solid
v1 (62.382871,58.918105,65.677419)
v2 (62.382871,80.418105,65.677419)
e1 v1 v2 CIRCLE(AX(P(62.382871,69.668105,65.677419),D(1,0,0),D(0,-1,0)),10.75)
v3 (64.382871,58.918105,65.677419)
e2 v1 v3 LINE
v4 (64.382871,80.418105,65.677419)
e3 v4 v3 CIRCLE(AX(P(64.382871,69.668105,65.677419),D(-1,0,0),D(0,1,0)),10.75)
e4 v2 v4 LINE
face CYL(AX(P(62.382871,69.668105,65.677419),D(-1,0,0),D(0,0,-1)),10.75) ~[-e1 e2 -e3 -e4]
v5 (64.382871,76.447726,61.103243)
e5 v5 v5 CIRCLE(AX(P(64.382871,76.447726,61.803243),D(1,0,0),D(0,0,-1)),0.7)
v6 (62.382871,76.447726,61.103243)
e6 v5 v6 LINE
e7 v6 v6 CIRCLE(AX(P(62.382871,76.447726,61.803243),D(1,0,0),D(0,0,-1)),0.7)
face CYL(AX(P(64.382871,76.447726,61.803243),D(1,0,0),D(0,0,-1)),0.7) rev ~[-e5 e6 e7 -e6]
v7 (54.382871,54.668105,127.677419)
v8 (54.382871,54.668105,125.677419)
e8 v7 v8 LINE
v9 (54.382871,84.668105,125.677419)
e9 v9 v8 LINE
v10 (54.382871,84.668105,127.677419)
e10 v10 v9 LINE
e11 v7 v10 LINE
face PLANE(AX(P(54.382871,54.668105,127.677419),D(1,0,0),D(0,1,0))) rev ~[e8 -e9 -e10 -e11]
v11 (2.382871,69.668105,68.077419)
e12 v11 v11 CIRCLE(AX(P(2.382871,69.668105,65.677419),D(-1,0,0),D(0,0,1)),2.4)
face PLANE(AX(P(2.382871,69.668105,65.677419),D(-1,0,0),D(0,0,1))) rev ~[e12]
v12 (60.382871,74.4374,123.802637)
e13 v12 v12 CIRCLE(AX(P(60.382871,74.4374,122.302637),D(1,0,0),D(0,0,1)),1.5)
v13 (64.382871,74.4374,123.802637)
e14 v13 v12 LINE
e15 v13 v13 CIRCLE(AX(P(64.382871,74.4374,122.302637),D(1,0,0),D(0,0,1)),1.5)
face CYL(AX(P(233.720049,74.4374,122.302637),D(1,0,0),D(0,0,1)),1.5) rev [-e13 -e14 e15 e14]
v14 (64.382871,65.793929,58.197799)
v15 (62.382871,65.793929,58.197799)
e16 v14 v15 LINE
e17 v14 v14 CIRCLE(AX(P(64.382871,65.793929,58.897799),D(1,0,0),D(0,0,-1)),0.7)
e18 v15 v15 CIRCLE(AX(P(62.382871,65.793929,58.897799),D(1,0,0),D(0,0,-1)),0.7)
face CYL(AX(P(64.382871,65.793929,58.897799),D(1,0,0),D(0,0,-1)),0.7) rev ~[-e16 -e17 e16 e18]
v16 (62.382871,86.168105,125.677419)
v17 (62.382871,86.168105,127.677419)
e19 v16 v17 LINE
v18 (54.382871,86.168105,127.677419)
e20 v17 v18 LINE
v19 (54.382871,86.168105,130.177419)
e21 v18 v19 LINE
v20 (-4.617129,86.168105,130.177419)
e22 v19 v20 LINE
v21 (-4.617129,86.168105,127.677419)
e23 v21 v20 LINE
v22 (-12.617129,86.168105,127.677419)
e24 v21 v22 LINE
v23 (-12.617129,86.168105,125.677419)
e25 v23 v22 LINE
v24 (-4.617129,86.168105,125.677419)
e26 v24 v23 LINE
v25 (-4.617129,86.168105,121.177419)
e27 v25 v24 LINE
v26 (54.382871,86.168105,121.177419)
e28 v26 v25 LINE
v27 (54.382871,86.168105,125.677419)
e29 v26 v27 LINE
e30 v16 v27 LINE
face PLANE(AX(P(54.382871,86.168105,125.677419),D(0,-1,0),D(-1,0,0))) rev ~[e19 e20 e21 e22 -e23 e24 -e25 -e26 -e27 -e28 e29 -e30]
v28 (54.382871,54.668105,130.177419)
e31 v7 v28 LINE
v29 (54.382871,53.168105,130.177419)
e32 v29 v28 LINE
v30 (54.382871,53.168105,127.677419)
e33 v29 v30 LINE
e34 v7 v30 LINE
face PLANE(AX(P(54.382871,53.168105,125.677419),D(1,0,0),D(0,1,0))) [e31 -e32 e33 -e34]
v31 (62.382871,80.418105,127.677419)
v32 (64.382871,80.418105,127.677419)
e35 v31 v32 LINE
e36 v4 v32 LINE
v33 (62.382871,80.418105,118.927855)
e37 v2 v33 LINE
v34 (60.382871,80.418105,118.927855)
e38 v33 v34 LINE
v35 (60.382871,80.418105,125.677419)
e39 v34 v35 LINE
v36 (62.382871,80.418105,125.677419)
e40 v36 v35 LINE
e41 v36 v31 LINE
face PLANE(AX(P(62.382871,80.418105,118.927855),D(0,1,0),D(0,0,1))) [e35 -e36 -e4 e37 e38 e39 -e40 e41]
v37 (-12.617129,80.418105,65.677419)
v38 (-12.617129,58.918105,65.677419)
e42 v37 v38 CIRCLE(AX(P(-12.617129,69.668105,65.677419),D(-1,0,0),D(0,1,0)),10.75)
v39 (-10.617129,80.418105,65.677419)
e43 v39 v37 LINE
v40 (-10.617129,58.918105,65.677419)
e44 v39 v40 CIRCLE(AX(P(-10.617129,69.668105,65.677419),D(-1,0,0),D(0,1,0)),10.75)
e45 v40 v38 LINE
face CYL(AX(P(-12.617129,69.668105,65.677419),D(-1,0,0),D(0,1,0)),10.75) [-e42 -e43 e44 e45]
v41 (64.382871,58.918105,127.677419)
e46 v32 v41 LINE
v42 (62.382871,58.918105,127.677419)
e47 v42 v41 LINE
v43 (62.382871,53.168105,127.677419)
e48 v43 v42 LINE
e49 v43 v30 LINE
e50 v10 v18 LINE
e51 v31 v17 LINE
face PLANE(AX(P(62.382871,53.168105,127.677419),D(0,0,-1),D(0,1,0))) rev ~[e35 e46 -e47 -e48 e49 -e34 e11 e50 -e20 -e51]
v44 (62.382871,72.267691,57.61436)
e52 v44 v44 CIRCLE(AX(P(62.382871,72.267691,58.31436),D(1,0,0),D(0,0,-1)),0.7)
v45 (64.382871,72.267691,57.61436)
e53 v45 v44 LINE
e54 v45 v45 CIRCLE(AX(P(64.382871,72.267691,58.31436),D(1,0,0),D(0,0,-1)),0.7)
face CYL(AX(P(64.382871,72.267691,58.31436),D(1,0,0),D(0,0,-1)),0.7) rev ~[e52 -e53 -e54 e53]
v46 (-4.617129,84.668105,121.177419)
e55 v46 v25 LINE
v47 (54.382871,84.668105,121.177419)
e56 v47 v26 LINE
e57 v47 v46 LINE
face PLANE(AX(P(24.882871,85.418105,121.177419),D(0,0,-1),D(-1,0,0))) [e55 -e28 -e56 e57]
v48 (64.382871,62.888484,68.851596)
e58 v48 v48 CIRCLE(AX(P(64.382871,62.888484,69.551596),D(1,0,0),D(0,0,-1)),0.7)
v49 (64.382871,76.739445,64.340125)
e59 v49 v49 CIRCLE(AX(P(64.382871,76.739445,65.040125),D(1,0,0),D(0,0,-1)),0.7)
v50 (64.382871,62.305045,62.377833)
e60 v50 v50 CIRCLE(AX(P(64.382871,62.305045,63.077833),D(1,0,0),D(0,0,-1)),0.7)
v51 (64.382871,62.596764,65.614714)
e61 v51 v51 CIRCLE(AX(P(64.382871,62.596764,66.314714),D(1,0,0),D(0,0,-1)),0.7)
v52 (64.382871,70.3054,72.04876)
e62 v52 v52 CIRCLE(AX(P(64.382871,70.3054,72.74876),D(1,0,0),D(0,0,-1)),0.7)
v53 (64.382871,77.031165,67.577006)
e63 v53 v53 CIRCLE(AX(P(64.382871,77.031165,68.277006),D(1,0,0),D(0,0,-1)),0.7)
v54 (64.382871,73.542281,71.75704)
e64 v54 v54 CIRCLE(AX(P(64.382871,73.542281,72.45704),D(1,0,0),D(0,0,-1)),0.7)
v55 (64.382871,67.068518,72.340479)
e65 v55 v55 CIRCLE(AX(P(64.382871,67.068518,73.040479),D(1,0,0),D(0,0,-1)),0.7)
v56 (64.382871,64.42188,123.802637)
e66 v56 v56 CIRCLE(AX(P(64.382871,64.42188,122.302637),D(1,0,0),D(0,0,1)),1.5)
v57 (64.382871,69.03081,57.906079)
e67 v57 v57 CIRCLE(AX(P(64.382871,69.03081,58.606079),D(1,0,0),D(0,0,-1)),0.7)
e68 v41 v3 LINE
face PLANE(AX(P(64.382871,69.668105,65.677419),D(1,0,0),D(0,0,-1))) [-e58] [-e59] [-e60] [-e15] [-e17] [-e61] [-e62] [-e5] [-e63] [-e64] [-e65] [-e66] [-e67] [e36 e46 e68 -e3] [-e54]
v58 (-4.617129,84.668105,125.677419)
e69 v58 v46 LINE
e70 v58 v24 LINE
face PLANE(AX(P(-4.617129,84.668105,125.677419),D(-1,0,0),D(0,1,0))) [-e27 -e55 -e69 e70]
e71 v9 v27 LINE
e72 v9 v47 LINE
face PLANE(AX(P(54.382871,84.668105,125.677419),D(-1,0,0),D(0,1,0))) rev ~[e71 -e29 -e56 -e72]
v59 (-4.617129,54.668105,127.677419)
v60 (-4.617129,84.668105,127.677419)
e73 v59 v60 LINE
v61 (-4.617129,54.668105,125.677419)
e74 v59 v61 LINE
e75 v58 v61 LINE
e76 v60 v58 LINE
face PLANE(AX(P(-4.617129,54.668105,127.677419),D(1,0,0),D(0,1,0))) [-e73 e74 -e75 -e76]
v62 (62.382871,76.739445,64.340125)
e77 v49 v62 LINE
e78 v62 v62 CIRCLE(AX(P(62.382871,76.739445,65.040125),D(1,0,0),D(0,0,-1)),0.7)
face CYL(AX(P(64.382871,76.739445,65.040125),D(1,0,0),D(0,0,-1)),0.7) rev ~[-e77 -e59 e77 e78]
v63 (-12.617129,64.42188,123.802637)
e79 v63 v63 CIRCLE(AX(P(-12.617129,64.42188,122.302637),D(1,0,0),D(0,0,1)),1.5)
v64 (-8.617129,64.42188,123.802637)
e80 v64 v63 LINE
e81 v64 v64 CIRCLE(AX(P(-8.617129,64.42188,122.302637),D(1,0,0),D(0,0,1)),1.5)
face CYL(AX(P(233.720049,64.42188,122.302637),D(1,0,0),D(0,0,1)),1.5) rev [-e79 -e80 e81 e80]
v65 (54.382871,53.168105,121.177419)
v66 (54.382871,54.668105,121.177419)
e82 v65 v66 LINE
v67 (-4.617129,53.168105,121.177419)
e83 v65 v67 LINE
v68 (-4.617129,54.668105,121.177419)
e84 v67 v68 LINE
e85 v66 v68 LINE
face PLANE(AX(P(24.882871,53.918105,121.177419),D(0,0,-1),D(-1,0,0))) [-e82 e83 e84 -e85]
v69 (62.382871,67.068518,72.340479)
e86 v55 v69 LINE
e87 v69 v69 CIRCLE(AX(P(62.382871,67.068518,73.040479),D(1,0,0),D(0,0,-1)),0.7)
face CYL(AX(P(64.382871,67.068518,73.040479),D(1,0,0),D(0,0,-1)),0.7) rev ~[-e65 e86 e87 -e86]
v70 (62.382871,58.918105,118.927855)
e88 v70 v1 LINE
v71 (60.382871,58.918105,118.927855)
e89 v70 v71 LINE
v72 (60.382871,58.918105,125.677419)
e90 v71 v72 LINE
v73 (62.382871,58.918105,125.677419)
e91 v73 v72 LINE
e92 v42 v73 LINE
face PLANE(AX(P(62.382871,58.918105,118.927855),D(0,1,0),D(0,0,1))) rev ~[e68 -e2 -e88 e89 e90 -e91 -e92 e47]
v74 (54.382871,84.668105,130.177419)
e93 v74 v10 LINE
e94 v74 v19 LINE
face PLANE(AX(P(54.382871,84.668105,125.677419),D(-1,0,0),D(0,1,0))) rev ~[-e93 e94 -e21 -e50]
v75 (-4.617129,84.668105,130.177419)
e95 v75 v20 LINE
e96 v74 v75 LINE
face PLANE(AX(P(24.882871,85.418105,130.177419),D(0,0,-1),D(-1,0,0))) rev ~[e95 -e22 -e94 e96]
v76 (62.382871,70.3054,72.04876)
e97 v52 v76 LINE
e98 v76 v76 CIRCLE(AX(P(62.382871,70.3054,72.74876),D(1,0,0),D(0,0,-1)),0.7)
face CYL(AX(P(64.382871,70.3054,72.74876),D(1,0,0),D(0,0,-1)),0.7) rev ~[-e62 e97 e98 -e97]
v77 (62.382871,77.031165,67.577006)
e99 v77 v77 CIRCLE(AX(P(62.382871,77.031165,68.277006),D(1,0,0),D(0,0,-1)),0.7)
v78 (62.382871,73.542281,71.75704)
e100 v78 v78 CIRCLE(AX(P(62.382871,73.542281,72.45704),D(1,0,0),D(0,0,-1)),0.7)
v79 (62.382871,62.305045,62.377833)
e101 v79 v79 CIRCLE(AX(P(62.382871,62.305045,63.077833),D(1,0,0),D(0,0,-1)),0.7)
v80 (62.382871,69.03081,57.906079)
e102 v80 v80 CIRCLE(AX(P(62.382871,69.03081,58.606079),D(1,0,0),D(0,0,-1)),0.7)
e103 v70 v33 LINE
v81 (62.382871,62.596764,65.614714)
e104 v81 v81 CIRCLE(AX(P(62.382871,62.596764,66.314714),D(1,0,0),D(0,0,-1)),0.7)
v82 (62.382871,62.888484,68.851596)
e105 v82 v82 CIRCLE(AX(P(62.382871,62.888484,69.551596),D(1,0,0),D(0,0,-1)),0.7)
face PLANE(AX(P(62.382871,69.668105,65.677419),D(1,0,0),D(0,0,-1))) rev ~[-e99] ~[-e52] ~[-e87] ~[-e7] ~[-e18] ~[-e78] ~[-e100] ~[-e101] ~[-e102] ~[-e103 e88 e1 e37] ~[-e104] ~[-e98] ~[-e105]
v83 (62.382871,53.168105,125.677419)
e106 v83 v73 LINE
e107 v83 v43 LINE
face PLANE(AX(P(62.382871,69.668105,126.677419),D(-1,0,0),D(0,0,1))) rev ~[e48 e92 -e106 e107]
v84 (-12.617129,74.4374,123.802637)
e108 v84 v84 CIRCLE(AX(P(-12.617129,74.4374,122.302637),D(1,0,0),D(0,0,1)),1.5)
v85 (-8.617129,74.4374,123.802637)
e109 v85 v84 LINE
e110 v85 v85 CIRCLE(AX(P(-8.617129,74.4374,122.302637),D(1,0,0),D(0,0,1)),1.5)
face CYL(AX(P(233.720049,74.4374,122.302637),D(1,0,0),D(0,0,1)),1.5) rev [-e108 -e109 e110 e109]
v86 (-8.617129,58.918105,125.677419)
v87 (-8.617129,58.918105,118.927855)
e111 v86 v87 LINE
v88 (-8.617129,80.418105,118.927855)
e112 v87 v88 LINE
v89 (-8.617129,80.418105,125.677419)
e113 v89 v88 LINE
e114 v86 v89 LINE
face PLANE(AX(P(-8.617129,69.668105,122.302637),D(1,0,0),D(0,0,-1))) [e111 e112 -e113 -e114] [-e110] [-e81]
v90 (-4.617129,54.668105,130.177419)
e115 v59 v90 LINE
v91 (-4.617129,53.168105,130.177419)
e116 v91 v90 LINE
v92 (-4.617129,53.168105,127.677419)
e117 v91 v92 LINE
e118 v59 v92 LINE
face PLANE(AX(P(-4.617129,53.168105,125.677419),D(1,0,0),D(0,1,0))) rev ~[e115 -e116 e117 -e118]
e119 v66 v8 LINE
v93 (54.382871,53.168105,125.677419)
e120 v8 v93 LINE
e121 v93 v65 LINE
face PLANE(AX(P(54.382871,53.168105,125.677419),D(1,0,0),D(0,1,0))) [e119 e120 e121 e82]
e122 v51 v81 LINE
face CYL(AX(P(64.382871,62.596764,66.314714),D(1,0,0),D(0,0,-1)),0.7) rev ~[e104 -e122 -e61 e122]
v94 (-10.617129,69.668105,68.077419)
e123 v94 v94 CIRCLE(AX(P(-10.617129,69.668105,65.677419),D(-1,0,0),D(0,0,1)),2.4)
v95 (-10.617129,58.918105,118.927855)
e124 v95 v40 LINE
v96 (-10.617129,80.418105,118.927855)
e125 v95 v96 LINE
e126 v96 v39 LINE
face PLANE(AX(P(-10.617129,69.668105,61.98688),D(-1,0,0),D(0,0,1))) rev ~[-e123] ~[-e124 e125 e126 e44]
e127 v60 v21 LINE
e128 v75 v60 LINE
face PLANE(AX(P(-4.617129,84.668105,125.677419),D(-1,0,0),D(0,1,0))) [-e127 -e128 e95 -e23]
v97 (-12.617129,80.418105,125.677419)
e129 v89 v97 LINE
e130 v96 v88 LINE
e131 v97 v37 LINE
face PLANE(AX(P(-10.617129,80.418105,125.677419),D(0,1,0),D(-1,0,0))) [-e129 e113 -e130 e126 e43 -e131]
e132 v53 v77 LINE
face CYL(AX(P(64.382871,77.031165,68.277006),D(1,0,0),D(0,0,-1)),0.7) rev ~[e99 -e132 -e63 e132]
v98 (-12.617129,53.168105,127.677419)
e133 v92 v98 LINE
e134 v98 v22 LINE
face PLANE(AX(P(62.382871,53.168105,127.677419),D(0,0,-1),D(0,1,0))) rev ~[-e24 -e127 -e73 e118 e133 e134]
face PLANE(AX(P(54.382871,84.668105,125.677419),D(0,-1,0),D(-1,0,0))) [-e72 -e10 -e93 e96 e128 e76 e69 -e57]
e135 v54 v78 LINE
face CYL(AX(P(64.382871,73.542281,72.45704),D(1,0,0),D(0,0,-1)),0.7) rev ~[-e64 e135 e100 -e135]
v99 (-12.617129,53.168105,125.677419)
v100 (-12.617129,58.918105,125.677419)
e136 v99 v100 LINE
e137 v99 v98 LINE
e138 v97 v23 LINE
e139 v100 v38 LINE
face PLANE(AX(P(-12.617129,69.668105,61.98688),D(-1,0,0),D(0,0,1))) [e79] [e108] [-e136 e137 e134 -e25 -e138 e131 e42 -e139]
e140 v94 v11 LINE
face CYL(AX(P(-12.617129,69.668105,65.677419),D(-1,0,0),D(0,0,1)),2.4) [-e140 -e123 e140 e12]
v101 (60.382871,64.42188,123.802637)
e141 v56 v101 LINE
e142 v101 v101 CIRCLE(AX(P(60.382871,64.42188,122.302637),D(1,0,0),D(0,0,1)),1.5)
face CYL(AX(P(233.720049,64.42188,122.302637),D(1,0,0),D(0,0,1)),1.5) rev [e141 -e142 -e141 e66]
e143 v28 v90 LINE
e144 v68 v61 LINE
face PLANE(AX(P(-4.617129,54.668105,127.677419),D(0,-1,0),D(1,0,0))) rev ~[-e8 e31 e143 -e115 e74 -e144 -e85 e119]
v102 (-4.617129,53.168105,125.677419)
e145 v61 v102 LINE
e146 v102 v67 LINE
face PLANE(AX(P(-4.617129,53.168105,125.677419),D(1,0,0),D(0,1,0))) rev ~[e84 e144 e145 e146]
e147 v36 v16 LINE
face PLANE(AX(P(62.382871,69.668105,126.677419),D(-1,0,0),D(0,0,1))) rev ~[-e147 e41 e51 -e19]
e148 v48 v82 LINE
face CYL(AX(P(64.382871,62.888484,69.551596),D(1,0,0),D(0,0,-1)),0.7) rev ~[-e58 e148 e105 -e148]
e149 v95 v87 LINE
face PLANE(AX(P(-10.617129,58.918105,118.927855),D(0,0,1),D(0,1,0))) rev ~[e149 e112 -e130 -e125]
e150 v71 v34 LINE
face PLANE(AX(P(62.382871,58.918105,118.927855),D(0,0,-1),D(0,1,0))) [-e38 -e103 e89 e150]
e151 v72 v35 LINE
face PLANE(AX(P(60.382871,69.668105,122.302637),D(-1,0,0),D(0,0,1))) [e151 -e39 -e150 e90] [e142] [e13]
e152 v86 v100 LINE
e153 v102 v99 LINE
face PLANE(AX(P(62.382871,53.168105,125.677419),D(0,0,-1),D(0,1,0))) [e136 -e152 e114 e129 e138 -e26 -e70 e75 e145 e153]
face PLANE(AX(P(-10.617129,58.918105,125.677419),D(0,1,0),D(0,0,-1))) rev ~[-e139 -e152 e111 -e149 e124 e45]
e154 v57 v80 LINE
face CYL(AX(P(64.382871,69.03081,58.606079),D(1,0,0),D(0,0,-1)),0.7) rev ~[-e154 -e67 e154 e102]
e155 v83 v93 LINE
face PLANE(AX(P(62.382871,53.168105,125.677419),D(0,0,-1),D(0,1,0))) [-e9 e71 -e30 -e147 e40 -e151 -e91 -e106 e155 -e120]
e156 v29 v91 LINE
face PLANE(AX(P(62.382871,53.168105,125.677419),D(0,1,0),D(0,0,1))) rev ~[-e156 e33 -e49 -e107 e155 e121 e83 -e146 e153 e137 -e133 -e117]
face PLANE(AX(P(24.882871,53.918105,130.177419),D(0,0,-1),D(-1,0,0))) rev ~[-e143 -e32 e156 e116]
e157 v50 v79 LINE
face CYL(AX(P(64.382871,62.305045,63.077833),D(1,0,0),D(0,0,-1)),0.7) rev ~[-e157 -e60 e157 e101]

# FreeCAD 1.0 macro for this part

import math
import FreeCAD as App
import Part
import Sketcher

doc = App.newDocument("Part")
params = doc.addObject("Spreadsheet::Sheet", "Params")
for row, (alias, value) in enumerate([
    ("sketch1_diameter", "1 mm"),
    ("sketch1_diameter2", "21.5 mm"),
    ("pad1_length", "2 mm"),
    ("sketch2_height", "62 mm"),
    ("sketch2_radius", "10.75 mm"),
    ("pad2_length", "2 mm"),
    ("sketch3_width", "33 mm"),
    ("sketch3_height", "2 mm"),
    ("pad3_length", "75 mm"),
    ("sketch4_diameter", "1.4 mm"),
    ("pocket1_length", "7 mm"),
    ("sketch5_width", "2 mm"),
    ("sketch5_height", "21.5 mm"),
    ("pad4_length", "60 mm"),
    ("sketch6_width", "10 mm"),
    ("sketch6_radius", "10.75 mm"),
    ("pad5_length", "2 mm"),
    ("sketch7_diameter", "4.8 mm"),
    ("pad6_length", "15 mm"),
    ("sketch8_width", "59 mm"),
    ("sketch8_height", "30 mm"),
    ("pocket2_length", "15 mm"),
    ("sketch9_width", "59 mm"),
    ("sketch9_height", "1.5 mm"),
    ("pad7_length", "9 mm"),
    ("sketch10_width", "21.5 mm"),
    ("pad8_length", "2 mm"),
    ("sketch11_width", "21.5 mm"),
    ("pad9_length", "2 mm"),
    ("sketch12_diameter", "3 mm"),
], start=1):
    params.set(f"A{row}", alias)
    params.set(f"B{row}", "=" + value)
    params.setAlias(f"B{row}", alias)

body = doc.addObject("PartDesign::Body", "Body")

sketch1 = body.newObject("Sketcher::SketchObject", "Sketch")
sketch1.AttachmentSupport = (doc.getObject("YZ_Plane"), [""])
sketch1.MapMode = "FlatFace"
sketch1.AttachmentOffset = App.Placement(App.Vector(0, 0, 62.382871), App.Rotation())
sketch1.addGeometry([
    Part.Circle(App.Vector(69.668105, 65.677419, 0), App.Vector(0, 0, 1), 10.75),
    Part.Circle(App.Vector(62.888484, 69.551596, 0), App.Vector(0, 0, 1), 0.5),
    Part.Circle(App.Vector(62.596764, 66.314714, 0), App.Vector(0, 0, 1), 0.5),
    Part.Circle(App.Vector(67.068518, 73.040479, 0), App.Vector(0, 0, 1), 0.5),
    Part.Circle(App.Vector(62.305045, 63.077833, 0), App.Vector(0, 0, 1), 0.5),
    Part.Circle(App.Vector(65.793929, 58.897799, 0), App.Vector(0, 0, 1), 0.5),
    Part.Circle(App.Vector(69.03081, 58.606079, 0), App.Vector(0, 0, 1), 0.5),
    Part.Circle(App.Vector(70.3054, 72.74876, 0), App.Vector(0, 0, 1), 0.5),
    Part.Circle(App.Vector(73.542281, 72.45704, 0), App.Vector(0, 0, 1), 0.5),
    Part.Circle(App.Vector(77.031165, 68.277006, 0), App.Vector(0, 0, 1), 0.5),
    Part.Circle(App.Vector(72.267691, 58.31436, 0), App.Vector(0, 0, 1), 0.5),
    Part.Circle(App.Vector(76.739445, 65.040125, 0), App.Vector(0, 0, 1), 0.5),
    Part.Circle(App.Vector(76.447726, 61.803243, 0), App.Vector(0, 0, 1), 0.5),
], False)
sketch1.addConstraint([
    Sketcher.Constraint("Equal", 1, 2),
    Sketcher.Constraint("Equal", 2, 3),
    Sketcher.Constraint("Equal", 3, 4),
    Sketcher.Constraint("Equal", 4, 5),
    Sketcher.Constraint("Equal", 5, 6),
    Sketcher.Constraint("Equal", 6, 7),
    Sketcher.Constraint("Equal", 7, 8),
    Sketcher.Constraint("Equal", 8, 9),
    Sketcher.Constraint("Equal", 9, 10),
    Sketcher.Constraint("Equal", 10, 11),
    Sketcher.Constraint("Equal", 11, 12),
    Sketcher.Constraint("Diameter", 1, 1.0),
    Sketcher.Constraint("Diameter", 0, 21.5),
    Sketcher.Constraint("DistanceY", -1, 1, 5, 3, 58.897799),
    Sketcher.Constraint("DistanceX", -1, 1, 7, 3, 70.3054),
    Sketcher.Constraint("DistanceY", -1, 1, 0, 3, 65.677419),
    Sketcher.Constraint("DistanceX", -1, 1, 3, 3, 67.068518),
    Sketcher.Constraint("DistanceY", -1, 1, 3, 3, 73.040479),
    Sketcher.Constraint("DistanceX", -1, 1, 5, 3, 65.793929),
    Sketcher.Constraint("DistanceX", -1, 1, 6, 3, 69.03081),
    Sketcher.Constraint("DistanceY", -1, 1, 6, 3, 58.606079),
    Sketcher.Constraint("DistanceY", -1, 1, 7, 3, 72.74876),
    Sketcher.Constraint("DistanceX", -1, 1, 8, 3, 73.542281),
    Sketcher.Constraint("DistanceY", -1, 1, 8, 3, 72.45704),
    Sketcher.Constraint("DistanceX", -1, 1, 10, 3, 72.267691),
    Sketcher.Constraint("DistanceY", -1, 1, 10, 3, 58.31436),
    Sketcher.Constraint("DistanceX", 1, 3, 0, 3, 6.779621),
    Sketcher.Constraint("DistanceX", 2, 3, 1, 3, 0.29172),
    Sketcher.Constraint("DistanceY", 2, 3, 1, 3, 3.236881),
    Sketcher.Constraint("DistanceX", 4, 3, 2, 3, 0.291719),
    Sketcher.Constraint("DistanceY", 4, 3, 2, 3, 3.236881),
    Sketcher.Constraint("DistanceX", 0, 3, 9, 3, 7.36306),
    Sketcher.Constraint("DistanceX", 11, 3, 9, 3, 0.291719),
    Sketcher.Constraint("DistanceY", 11, 3, 9, 3, 3.236881),
    Sketcher.Constraint("DistanceX", 12, 3, 11, 3, 0.29172),
    Sketcher.Constraint("DistanceY", 12, 3, 11, 3, 3.236881),
    Sketcher.Constraint("DistanceX", -1, 1, 0, 3, 69.668105),
    Sketcher.Constraint("DistanceY", -1, 1, 1, 3, 69.551596),
    Sketcher.Constraint("DistanceY", -1, 1, 9, 3, 68.277006),
])
sketch1.setExpression("Constraints[11]", "Params.sketch1_diameter")
sketch1.setExpression("Constraints[12]", "Params.sketch1_diameter2")
pad1 = body.newObject("PartDesign::Pad", "Pad")
pad1.Profile = sketch1
pad1.setExpression("Length", "Params.pad1_length")

sketch2 = body.newObject("Sketcher::SketchObject", "Sketch001")
sketch2.AttachmentSupport = (doc.getObject("YZ_Plane"), [""])
sketch2.MapMode = "FlatFace"
sketch2.AttachmentOffset = App.Placement(App.Vector(0, 0, 62.382871), App.Rotation())
sketch2.addGeometry([
    Part.LineSegment(App.Vector(80.418105, 127.677419, 0), App.Vector(80.418105, 65.677419, 0)),
    Part.ArcOfCircle(Part.Circle(App.Vector(69.668105, 65.677419, 0), App.Vector(0, 0, 1), 10.75), math.radians(0), math.radians(180)),
    Part.LineSegment(App.Vector(58.918105, 65.677419, 0), App.Vector(58.918105, 127.677419, 0)),
    Part.LineSegment(App.Vector(58.918105, 127.677419, 0), App.Vector(80.418105, 127.677419, 0)),
], False)
sketch2.addConstraint([
    Sketcher.Constraint("Tangent", 0, 2, 1, 1),
    Sketcher.Constraint("Tangent", 1, 2, 2, 1),
    Sketcher.Constraint("Coincident", 2, 2, 3, 1),
    Sketcher.Constraint("Coincident", 3, 2, 0, 1),
    Sketcher.Constraint("Vertical", 0),
    Sketcher.Constraint("Vertical", 2),
    Sketcher.Constraint("Horizontal", 3),
    Sketcher.Constraint("DistanceY", 0, 2, 0, 1, 62.0),
    Sketcher.Constraint("Radius", 1, 10.75),
    Sketcher.Constraint("DistanceY", -1, 1, 1, 3, 65.677419),
    Sketcher.Constraint("DistanceX", -1, 1, 1, 3, 69.668105),
])
sketch2.setExpression("Constraints[7]", "Params.sketch2_height")
sketch2.setExpression("Constraints[8]", "Params.sketch2_radius")
pad2 = body.newObject("PartDesign::Pad", "Pad001")
pad2.Profile = sketch2
pad2.setExpression("Length", "Params.pad2_length")

sketch3 = body.newObject("Sketcher::SketchObject", "Sketch002")
sketch3.AttachmentSupport = (doc.getObject("YZ_Plane"), [""])
sketch3.MapMode = "FlatFace"
sketch3.AttachmentOffset = App.Placement(App.Vector(0, 0, 62.382871), App.Rotation())
sketch3.addGeometry([
    Part.LineSegment(App.Vector(86.168105, 125.677419, 0), App.Vector(53.168105, 125.677419, 0)),
    Part.LineSegment(App.Vector(53.168105, 125.677419, 0), App.Vector(53.168105, 127.677419, 0)),
    Part.LineSegment(App.Vector(53.168105, 127.677419, 0), App.Vector(86.168105, 127.677419, 0)),
    Part.LineSegment(App.Vector(86.168105, 127.677419, 0), App.Vector(86.168105, 125.677419, 0)),
], False)
sketch3.addConstraint([
    Sketcher.Constraint("Coincident", 0, 2, 1, 1),
    Sketcher.Constraint("Coincident", 1, 2, 2, 1),
    Sketcher.Constraint("Coincident", 2, 2, 3, 1),
    Sketcher.Constraint("Coincident", 3, 2, 0, 1),
    Sketcher.Constraint("Horizontal", 0),
    Sketcher.Constraint("Vertical", 1),
    Sketcher.Constraint("Horizontal", 2),
    Sketcher.Constraint("Vertical", 3),
    Sketcher.Constraint("DistanceX", 0, 2, 0, 1, 33.0),
    Sketcher.Constraint("DistanceY", 1, 1, 1, 2, 2.0),
    Sketcher.Constraint("DistanceY", -1, 1, 0, 2, 125.677419),
    Sketcher.Constraint("DistanceX", -1, 1, 0, 2, 53.168105),
])
sketch3.setExpression("Constraints[8]", "Params.sketch3_width")
sketch3.setExpression("Constraints[9]", "Params.sketch3_height")
pad3 = body.newObject("PartDesign::Pad", "Pad002")
pad3.Profile = sketch3
pad3.setExpression("Length", "Params.pad3_length")
pad3.Reversed = True

sketch4 = body.newObject("Sketcher::SketchObject", "Sketch003")
sketch4.AttachmentSupport = (doc.getObject("YZ_Plane"), [""])
sketch4.MapMode = "FlatFace"
sketch4.AttachmentOffset = App.Placement(App.Vector(0, 0, 64.382871), App.Rotation())
sketch4.addGeometry([
    Part.Circle(App.Vector(77.031165, 68.277006, 0), App.Vector(0, 0, 1), 0.7),
    Part.Circle(App.Vector(76.739445, 65.040125, 0), App.Vector(0, 0, 1), 0.7),
    Part.Circle(App.Vector(76.447726, 61.803243, 0), App.Vector(0, 0, 1), 0.7),
    Part.Circle(App.Vector(72.267691, 58.31436, 0), App.Vector(0, 0, 1), 0.7),
    Part.Circle(App.Vector(69.03081, 58.606079, 0), App.Vector(0, 0, 1), 0.7),
    Part.Circle(App.Vector(65.793929, 58.897799, 0), App.Vector(0, 0, 1), 0.7),
    Part.Circle(App.Vector(62.305045, 63.077833, 0), App.Vector(0, 0, 1), 0.7),
    Part.Circle(App.Vector(62.596764, 66.314714, 0), App.Vector(0, 0, 1), 0.7),
    Part.Circle(App.Vector(62.888484, 69.551596, 0), App.Vector(0, 0, 1), 0.7),
    Part.Circle(App.Vector(67.068518, 73.040479, 0), App.Vector(0, 0, 1), 0.7),
    Part.Circle(App.Vector(70.3054, 72.74876, 0), App.Vector(0, 0, 1), 0.7),
    Part.Circle(App.Vector(73.542281, 72.45704, 0), App.Vector(0, 0, 1), 0.7),
], False)
sketch4.addConstraint([
    Sketcher.Constraint("Equal", 0, 1),
    Sketcher.Constraint("Equal", 1, 2),
    Sketcher.Constraint("Equal", 2, 3),
    Sketcher.Constraint("Equal", 3, 4),
    Sketcher.Constraint("Equal", 4, 5),
    Sketcher.Constraint("Equal", 5, 6),
    Sketcher.Constraint("Equal", 6, 7),
    Sketcher.Constraint("Equal", 7, 8),
    Sketcher.Constraint("Equal", 8, 9),
    Sketcher.Constraint("Equal", 9, 10),
    Sketcher.Constraint("Equal", 10, 11),
    Sketcher.Constraint("Diameter", 0, 1.4),
    Sketcher.Constraint("DistanceY", -1, 1, 5, 3, 58.897799),
    Sketcher.Constraint("DistanceX", -1, 1, 10, 3, 70.3054),
    Sketcher.Constraint("DistanceX", 6, 3, 1, 3, 14.4344),
    Sketcher.Constraint("DistanceX", -1, 1, 3, 3, 72.267691),
    Sketcher.Constraint("DistanceY", -1, 1, 3, 3, 58.31436),
    Sketcher.Constraint("DistanceX", -1, 1, 4, 3, 69.03081),
    Sketcher.Constraint("DistanceY", -1, 1, 4, 3, 58.606079),
    Sketcher.Constraint("DistanceX", -1, 1, 5, 3, 65.793929),
    Sketcher.Constraint("DistanceX", -1, 1, 9, 3, 67.068518),
    Sketcher.Constraint("DistanceY", -1, 1, 9, 3, 73.040479),
    Sketcher.Constraint("DistanceY", -1, 1, 10, 3, 72.74876),
    Sketcher.Constraint("DistanceX", -1, 1, 11, 3, 73.542281),
    Sketcher.Constraint("DistanceY", -1, 1, 11, 3, 72.45704),
    Sketcher.Constraint("DistanceX", 1, 3, 0, 3, 0.291719),
    Sketcher.Constraint("DistanceY", 1, 3, 0, 3, 3.236881),
    Sketcher.Constraint("DistanceX", 2, 3, 1, 3, 0.29172),
    Sketcher.Constraint("DistanceY", 2, 3, 1, 3, 3.236881),
    Sketcher.Constraint("DistanceY", 2, 3, 6, 3, 1.27459),
    Sketcher.Constraint("DistanceX", 6, 3, 7, 3, 0.291719),
    Sketcher.Constraint("DistanceY", 6, 3, 7, 3, 3.236881),
    Sketcher.Constraint("DistanceX", 7, 3, 8, 3, 0.29172),
    Sketcher.Constraint("DistanceY", 7, 3, 8, 3, 3.236881),
    Sketcher.Constraint("DistanceX", -1, 1, 0, 3, 77.031165),
    Sketcher.Constraint("DistanceY", -1, 1, 0, 3, 68.277006),
])
sketch4.setExpression("Constraints[11]", "Params.sketch4_diameter")
pocket1 = body.newObject("PartDesign::Pocket", "Pocket")
pocket1.Profile = sketch4
pocket1.setExpression("Length", "Params.pocket1_length")

sketch5 = body.newObject("Sketcher::SketchObject", "Sketch004")
sketch5.AttachmentSupport = (doc.getObject("XY_Plane"), [""])
sketch5.MapMode = "FlatFace"
sketch5.AttachmentOffset = App.Placement(App.Vector(0, 0, 125.677419), App.Rotation())
sketch5.addGeometry([
    Part.LineSegment(App.Vector(-10.617129, 80.418105, 0), App.Vector(-10.617129, 58.918105, 0)),
    Part.LineSegment(App.Vector(-10.617129, 58.918105, 0), App.Vector(-12.617129, 58.918105, 0)),
    Part.LineSegment(App.Vector(-12.617129, 58.918105, 0), App.Vector(-12.617129, 80.418105, 0)),
    Part.LineSegment(App.Vector(-12.617129, 80.418105, 0), App.Vector(-10.617129, 80.418105, 0)),
], False)
sketch5.addConstraint([
    Sketcher.Constraint("Coincident", 0, 2, 1, 1),
    Sketcher.Constraint("Coincident", 1, 2, 2, 1),
    Sketcher.Constraint("Coincident", 2, 2, 3, 1),
    Sketcher.Constraint("Coincident", 3, 2, 0, 1),
    Sketcher.Constraint("Vertical", 0),
    Sketcher.Constraint("Horizontal", 1),
    Sketcher.Constraint("Vertical", 2),
    Sketcher.Constraint("Horizontal", 3),
    Sketcher.Constraint("DistanceX", 1, 2, 1, 1, 2.0),
    Sketcher.Constraint("DistanceY", 0, 2, 0, 1, 21.5),
    Sketcher.Constraint("DistanceX", 0, 2, -1, 1, 10.617129),
    Sketcher.Constraint("DistanceY", -1, 1, 0, 2, 58.918105),
])
sketch5.setExpression("Constraints[8]", "Params.sketch5_width")
sketch5.setExpression("Constraints[9]", "Params.sketch5_height")
pad4 = body.newObject("PartDesign::Pad", "Pad003")
pad4.Profile = sketch5
pad4.setExpression("Length", "Params.pad4_length")
pad4.Reversed = True

sketch6 = body.newObject("Sketcher::SketchObject", "Sketch005")
sketch6.AttachmentSupport = (doc.getObject("YZ_Plane"), [""])
sketch6.MapMode = "FlatFace"
sketch6.AttachmentOffset = App.Placement(App.Vector(0, 0, -12.617129), App.Rotation())
sketch6.addGeometry([
    Part.ArcOfCircle(Part.Circle(App.Vector(69.668105, 65.677419, 0), App.Vector(0, 0, 1), 10.75), math.radians(180), math.radians(360)),
    Part.LineSegment(App.Vector(58.918105, 65.677419, 0), App.Vector(68.918105, 65.677419, 0)),
    Part.ArcOfCircle(Part.Circle(App.Vector(69.668105, 65.677419, 0), App.Vector(0, 0, 1), 0.75), math.radians(180), math.radians(360)),
    Part.LineSegment(App.Vector(70.418105, 65.677419, 0), App.Vector(80.418105, 65.677419, 0)),
], False)
sketch6.addConstraint([
    Sketcher.Constraint("Coincident", 0, 1, 1, 1),
    Sketcher.Constraint("Coincident", 1, 2, 2, 1),
    Sketcher.Constraint("Coincident", 2, 2, 3, 1),
    Sketcher.Constraint("Coincident", 3, 2, 0, 2),
    Sketcher.Constraint("Horizontal", 1),
    Sketcher.Constraint("Horizontal", 3),
    Sketcher.Constraint("Coincident", 2, 3, 0, 3),
    Sketcher.Constraint("Horizontal", 2, 3, 0, 1),
    Sketcher.Constraint("Horizontal", 1, 2, 2, 2),
    Sketcher.Constraint("DistanceX", 1, 1, 1, 2, 10.0),
    Sketcher.Constraint("Radius", 0, 10.75),
    Sketcher.Constraint("DistanceY", -1, 1, 0, 3, 65.677419),
    Sketcher.Constraint("DistanceX", -1, 1, 0, 3, 69.668105),
])
sketch6.setExpression("Constraints[9]", "Params.sketch6_width")
sketch6.setExpression("Constraints[10]", "Params.sketch6_radius")
pad5 = body.newObject("PartDesign::Pad", "Pad004")
pad5.Profile = sketch6
pad5.setExpression("Length", "Params.pad5_length")

sketch7 = body.newObject("Sketcher::SketchObject", "Sketch006")
sketch7.AttachmentSupport = (doc.getObject("YZ_Plane"), [""])
sketch7.MapMode = "FlatFace"
sketch7.AttachmentOffset = App.Placement(App.Vector(0, 0, -12.617129), App.Rotation())
sketch7.addGeometry(Part.Circle(App.Vector(69.668105, 65.677419, 0), App.Vector(0, 0, 1), 2.4), False)
sketch7.addConstraint([
    Sketcher.Constraint("Diameter", 0, 4.8),
    Sketcher.Constraint("DistanceY", -1, 1, 0, 3, 65.677419),
    Sketcher.Constraint("DistanceX", -1, 1, 0, 3, 69.668105),
])
sketch7.setExpression("Constraints[0]", "Params.sketch7_diameter")
pad6 = body.newObject("PartDesign::Pad", "Pad005")
pad6.Profile = sketch7
pad6.setExpression("Length", "Params.pad6_length")

sketch8 = body.newObject("Sketcher::SketchObject", "Sketch007")
sketch8.AttachmentSupport = (doc.getObject("XY_Plane"), [""])
sketch8.MapMode = "FlatFace"
sketch8.AttachmentOffset = App.Placement(App.Vector(0, 0, 127.677419), App.Rotation())
sketch8.addGeometry([
    Part.LineSegment(App.Vector(-4.617129, 84.668105, 0), App.Vector(-4.617129, 54.668105, 0)),
    Part.LineSegment(App.Vector(-4.617129, 54.668105, 0), App.Vector(54.382871, 54.668105, 0)),
    Part.LineSegment(App.Vector(54.382871, 54.668105, 0), App.Vector(54.382871, 84.668105, 0)),
    Part.LineSegment(App.Vector(54.382871, 84.668105, 0), App.Vector(-4.617129, 84.668105, 0)),
], False)
sketch8.addConstraint([
    Sketcher.Constraint("Coincident", 0, 2, 1, 1),
    Sketcher.Constraint("Coincident", 1, 2, 2, 1),
    Sketcher.Constraint("Coincident", 2, 2, 3, 1),
    Sketcher.Constraint("Coincident", 3, 2, 0, 1),
    Sketcher.Constraint("Vertical", 0),
    Sketcher.Constraint("Horizontal", 1),
    Sketcher.Constraint("Vertical", 2),
    Sketcher.Constraint("Horizontal", 3),
    Sketcher.Constraint("DistanceX", 1, 1, 1, 2, 59.0),
    Sketcher.Constraint("DistanceY", 0, 2, 0, 1, 30.0),
    Sketcher.Constraint("DistanceX", 0, 2, -1, 1, 4.617129),
    Sketcher.Constraint("DistanceY", -1, 1, 0, 2, 54.668105),
])
sketch8.setExpression("Constraints[8]", "Params.sketch8_width")
sketch8.setExpression("Constraints[9]", "Params.sketch8_height")
pocket2 = body.newObject("PartDesign::Pocket", "Pocket001")
pocket2.Profile = sketch8
pocket2.setExpression("Length", "Params.pocket2_length")

sketch9 = body.newObject("Sketcher::SketchObject", "Sketch008")
sketch9.AttachmentSupport = (doc.getObject("XY_Plane"), [""])
sketch9.MapMode = "FlatFace"
sketch9.AttachmentOffset = App.Placement(App.Vector(0, 0, 125.677419), App.Rotation())
sketch9.addGeometry([
    Part.LineSegment(App.Vector(54.382871, 54.668105, 0), App.Vector(54.382871, 53.168105, 0)),
    Part.LineSegment(App.Vector(54.382871, 53.168105, 0), App.Vector(-4.617129, 53.168105, 0)),
    Part.LineSegment(App.Vector(-4.617129, 53.168105, 0), App.Vector(-4.617129, 54.668105, 0)),
    Part.LineSegment(App.Vector(-4.617129, 54.668105, 0), App.Vector(54.382871, 54.668105, 0)),
    Part.LineSegment(App.Vector(54.382871, 86.168105, 0), App.Vector(54.382871, 84.668105, 0)),
    Part.LineSegment(App.Vector(54.382871, 84.668105, 0), App.Vector(-4.617129, 84.668105, 0)),
    Part.LineSegment(App.Vector(-4.617129, 84.668105, 0), App.Vector(-4.617129, 86.168105, 0)),
    Part.LineSegment(App.Vector(-4.617129, 86.168105, 0), App.Vector(54.382871, 86.168105, 0)),
], False)
sketch9.addConstraint([
    Sketcher.Constraint("Coincident", 0, 2, 1, 1),
    Sketcher.Constraint("Coincident", 1, 2, 2, 1),
    Sketcher.Constraint("Coincident", 2, 2, 3, 1),
    Sketcher.Constraint("Coincident", 3, 2, 0, 1),
    Sketcher.Constraint("Coincident", 4, 2, 5, 1),
    Sketcher.Constraint("Coincident", 5, 2, 6, 1),
    Sketcher.Constraint("Coincident", 6, 2, 7, 1),
    Sketcher.Constraint("Coincident", 7, 2, 4, 1),
    Sketcher.Constraint("Vertical", 0),
    Sketcher.Constraint("Horizontal", 1),
    Sketcher.Constraint("Vertical", 2),
    Sketcher.Constraint("Horizontal", 3),
    Sketcher.Constraint("Vertical", 4),
    Sketcher.Constraint("Horizontal", 5),
    Sketcher.Constraint("Vertical", 6),
    Sketcher.Constraint("Horizontal", 7),
    Sketcher.Constraint("Vertical", 3, 2, 4, 2),
    Sketcher.Constraint("Vertical", 2, 2, 5, 2),
    Sketcher.Constraint("Equal", 2, 4),
    Sketcher.Constraint("DistanceX", 1, 2, 1, 1, 59.0),
    Sketcher.Constraint("DistanceY", 0, 2, 0, 1, 1.5),
    Sketcher.Constraint("DistanceY", 3, 2, 4, 2, 30.0),
    Sketcher.Constraint("DistanceX", -1, 1, 0, 2, 54.382871),
    Sketcher.Constraint("DistanceY", -1, 1, 0, 2, 53.168105),
])
sketch9.setExpression("Constraints[19]", "Params.sketch9_width")
sketch9.setExpression("Constraints[20]", "Params.sketch9_height")
pad7 = body.newObject("PartDesign::Pad", "Pad006")
pad7.Profile = sketch9
pad7.setExpression("Length", "Params.pad7_length")
pad7.Midplane = True

sketch10 = body.newObject("Sketcher::SketchObject", "Sketch009")
sketch10.AttachmentSupport = (doc.getObject("YZ_Plane"), [""])
sketch10.MapMode = "FlatFace"
sketch10.AttachmentOffset = App.Placement(App.Vector(0, 0, 62.382871), App.Rotation())
sketch10.addGeometry([
    Part.LineSegment(App.Vector(80.418105, 118.927855, 0), App.Vector(58.918105, 118.927855, 0)),
    Part.LineSegment(App.Vector(58.918105, 118.927855, 0), App.Vector(58.918105, 125.677419, 0)),
    Part.LineSegment(App.Vector(58.918105, 125.677419, 0), App.Vector(80.418105, 125.677419, 0)),
    Part.LineSegment(App.Vector(80.418105, 125.677419, 0), App.Vector(80.418105, 118.927855, 0)),
], False)
sketch10.addConstraint([
    Sketcher.Constraint("Coincident", 0, 2, 1, 1),
    Sketcher.Constraint("Coincident", 1, 2, 2, 1),
    Sketcher.Constraint("Coincident", 2, 2, 3, 1),
    Sketcher.Constraint("Coincident", 3, 2, 0, 1),
    Sketcher.Constraint("Horizontal", 0),
    Sketcher.Constraint("Vertical", 1),
    Sketcher.Constraint("Horizontal", 2),
    Sketcher.Constraint("Vertical", 3),
    Sketcher.Constraint("DistanceX", 0, 2, 0, 1, 21.5),
    Sketcher.Constraint("DistanceY", 1, 1, 1, 2, 6.749565),
    Sketcher.Constraint("DistanceY", -1, 1, 1, 2, 125.677419),
    Sketcher.Constraint("DistanceX", -1, 1, 0, 2, 58.918105),
])
sketch10.setExpression("Constraints[8]", "Params.sketch10_width")
pad8 = body.newObject("PartDesign::Pad", "Pad007")
pad8.Profile = sketch10
pad8.setExpression("Length", "Params.pad8_length")
pad8.Reversed = True

sketch11 = body.newObject("Sketcher::SketchObject", "Sketch010")
sketch11.AttachmentSupport = (doc.getObject("YZ_Plane"), [""])
sketch11.MapMode = "FlatFace"
sketch11.AttachmentOffset = App.Placement(App.Vector(0, 0, -10.617129), App.Rotation())
sketch11.addGeometry([
    Part.LineSegment(App.Vector(80.418105, 125.677419, 0), App.Vector(58.918105, 125.677419, 0)),
    Part.LineSegment(App.Vector(58.918105, 125.677419, 0), App.Vector(58.918105, 118.927855, 0)),
    Part.LineSegment(App.Vector(58.918105, 118.927855, 0), App.Vector(80.418105, 118.927855, 0)),
    Part.LineSegment(App.Vector(80.418105, 118.927855, 0), App.Vector(80.418105, 125.677419, 0)),
], False)
sketch11.addConstraint([
    Sketcher.Constraint("Coincident", 0, 2, 1, 1),
    Sketcher.Constraint("Coincident", 1, 2, 2, 1),
    Sketcher.Constraint("Coincident", 2, 2, 3, 1),
    Sketcher.Constraint("Coincident", 3, 2, 0, 1),
    Sketcher.Constraint("Horizontal", 0),
    Sketcher.Constraint("Vertical", 1),
    Sketcher.Constraint("Horizontal", 2),
    Sketcher.Constraint("Vertical", 3),
    Sketcher.Constraint("DistanceX", 0, 2, 0, 1, 21.5),
    Sketcher.Constraint("DistanceY", 1, 2, 1, 1, 6.749565),
    Sketcher.Constraint("DistanceY", -1, 1, 0, 2, 125.677419),
    Sketcher.Constraint("DistanceX", -1, 1, 0, 2, 58.918105),
])
sketch11.setExpression("Constraints[8]", "Params.sketch11_width")
pad9 = body.newObject("PartDesign::Pad", "Pad008")
pad9.Profile = sketch11
pad9.setExpression("Length", "Params.pad9_length")

sketch12 = body.newObject("Sketcher::SketchObject", "Sketch011")
sketch12.AttachmentSupport = (doc.getObject("YZ_Plane"), [""])
sketch12.MapMode = "FlatFace"
sketch12.AttachmentOffset = App.Placement(App.Vector(0, 0, 60.382871), App.Rotation())
sketch12.addGeometry([
    Part.Circle(App.Vector(74.4374, 122.302637, 0), App.Vector(0, 0, 1), 1.5),
    Part.Circle(App.Vector(64.42188, 122.302637, 0), App.Vector(0, 0, 1), 1.5),
], False)
sketch12.addConstraint([
    Sketcher.Constraint("Equal", 0, 1),
    Sketcher.Constraint("Horizontal", 0, 3, 1, 3),
    Sketcher.Constraint("Diameter", 0, 3.0),
    Sketcher.Constraint("DistanceX", -1, 1, 0, 3, 74.4374),
    Sketcher.Constraint("DistanceX", -1, 1, 1, 3, 64.42188),
    Sketcher.Constraint("DistanceY", -1, 1, 0, 3, 122.302637),
])
sketch12.setExpression("Constraints[2]", "Params.sketch12_diameter")
pocket3 = body.newObject("PartDesign::Pocket", "Pocket002")
pocket3.Profile = sketch12
pocket3.Type = "ThroughAll"
pocket3.Midplane = True

doc.recompute()
